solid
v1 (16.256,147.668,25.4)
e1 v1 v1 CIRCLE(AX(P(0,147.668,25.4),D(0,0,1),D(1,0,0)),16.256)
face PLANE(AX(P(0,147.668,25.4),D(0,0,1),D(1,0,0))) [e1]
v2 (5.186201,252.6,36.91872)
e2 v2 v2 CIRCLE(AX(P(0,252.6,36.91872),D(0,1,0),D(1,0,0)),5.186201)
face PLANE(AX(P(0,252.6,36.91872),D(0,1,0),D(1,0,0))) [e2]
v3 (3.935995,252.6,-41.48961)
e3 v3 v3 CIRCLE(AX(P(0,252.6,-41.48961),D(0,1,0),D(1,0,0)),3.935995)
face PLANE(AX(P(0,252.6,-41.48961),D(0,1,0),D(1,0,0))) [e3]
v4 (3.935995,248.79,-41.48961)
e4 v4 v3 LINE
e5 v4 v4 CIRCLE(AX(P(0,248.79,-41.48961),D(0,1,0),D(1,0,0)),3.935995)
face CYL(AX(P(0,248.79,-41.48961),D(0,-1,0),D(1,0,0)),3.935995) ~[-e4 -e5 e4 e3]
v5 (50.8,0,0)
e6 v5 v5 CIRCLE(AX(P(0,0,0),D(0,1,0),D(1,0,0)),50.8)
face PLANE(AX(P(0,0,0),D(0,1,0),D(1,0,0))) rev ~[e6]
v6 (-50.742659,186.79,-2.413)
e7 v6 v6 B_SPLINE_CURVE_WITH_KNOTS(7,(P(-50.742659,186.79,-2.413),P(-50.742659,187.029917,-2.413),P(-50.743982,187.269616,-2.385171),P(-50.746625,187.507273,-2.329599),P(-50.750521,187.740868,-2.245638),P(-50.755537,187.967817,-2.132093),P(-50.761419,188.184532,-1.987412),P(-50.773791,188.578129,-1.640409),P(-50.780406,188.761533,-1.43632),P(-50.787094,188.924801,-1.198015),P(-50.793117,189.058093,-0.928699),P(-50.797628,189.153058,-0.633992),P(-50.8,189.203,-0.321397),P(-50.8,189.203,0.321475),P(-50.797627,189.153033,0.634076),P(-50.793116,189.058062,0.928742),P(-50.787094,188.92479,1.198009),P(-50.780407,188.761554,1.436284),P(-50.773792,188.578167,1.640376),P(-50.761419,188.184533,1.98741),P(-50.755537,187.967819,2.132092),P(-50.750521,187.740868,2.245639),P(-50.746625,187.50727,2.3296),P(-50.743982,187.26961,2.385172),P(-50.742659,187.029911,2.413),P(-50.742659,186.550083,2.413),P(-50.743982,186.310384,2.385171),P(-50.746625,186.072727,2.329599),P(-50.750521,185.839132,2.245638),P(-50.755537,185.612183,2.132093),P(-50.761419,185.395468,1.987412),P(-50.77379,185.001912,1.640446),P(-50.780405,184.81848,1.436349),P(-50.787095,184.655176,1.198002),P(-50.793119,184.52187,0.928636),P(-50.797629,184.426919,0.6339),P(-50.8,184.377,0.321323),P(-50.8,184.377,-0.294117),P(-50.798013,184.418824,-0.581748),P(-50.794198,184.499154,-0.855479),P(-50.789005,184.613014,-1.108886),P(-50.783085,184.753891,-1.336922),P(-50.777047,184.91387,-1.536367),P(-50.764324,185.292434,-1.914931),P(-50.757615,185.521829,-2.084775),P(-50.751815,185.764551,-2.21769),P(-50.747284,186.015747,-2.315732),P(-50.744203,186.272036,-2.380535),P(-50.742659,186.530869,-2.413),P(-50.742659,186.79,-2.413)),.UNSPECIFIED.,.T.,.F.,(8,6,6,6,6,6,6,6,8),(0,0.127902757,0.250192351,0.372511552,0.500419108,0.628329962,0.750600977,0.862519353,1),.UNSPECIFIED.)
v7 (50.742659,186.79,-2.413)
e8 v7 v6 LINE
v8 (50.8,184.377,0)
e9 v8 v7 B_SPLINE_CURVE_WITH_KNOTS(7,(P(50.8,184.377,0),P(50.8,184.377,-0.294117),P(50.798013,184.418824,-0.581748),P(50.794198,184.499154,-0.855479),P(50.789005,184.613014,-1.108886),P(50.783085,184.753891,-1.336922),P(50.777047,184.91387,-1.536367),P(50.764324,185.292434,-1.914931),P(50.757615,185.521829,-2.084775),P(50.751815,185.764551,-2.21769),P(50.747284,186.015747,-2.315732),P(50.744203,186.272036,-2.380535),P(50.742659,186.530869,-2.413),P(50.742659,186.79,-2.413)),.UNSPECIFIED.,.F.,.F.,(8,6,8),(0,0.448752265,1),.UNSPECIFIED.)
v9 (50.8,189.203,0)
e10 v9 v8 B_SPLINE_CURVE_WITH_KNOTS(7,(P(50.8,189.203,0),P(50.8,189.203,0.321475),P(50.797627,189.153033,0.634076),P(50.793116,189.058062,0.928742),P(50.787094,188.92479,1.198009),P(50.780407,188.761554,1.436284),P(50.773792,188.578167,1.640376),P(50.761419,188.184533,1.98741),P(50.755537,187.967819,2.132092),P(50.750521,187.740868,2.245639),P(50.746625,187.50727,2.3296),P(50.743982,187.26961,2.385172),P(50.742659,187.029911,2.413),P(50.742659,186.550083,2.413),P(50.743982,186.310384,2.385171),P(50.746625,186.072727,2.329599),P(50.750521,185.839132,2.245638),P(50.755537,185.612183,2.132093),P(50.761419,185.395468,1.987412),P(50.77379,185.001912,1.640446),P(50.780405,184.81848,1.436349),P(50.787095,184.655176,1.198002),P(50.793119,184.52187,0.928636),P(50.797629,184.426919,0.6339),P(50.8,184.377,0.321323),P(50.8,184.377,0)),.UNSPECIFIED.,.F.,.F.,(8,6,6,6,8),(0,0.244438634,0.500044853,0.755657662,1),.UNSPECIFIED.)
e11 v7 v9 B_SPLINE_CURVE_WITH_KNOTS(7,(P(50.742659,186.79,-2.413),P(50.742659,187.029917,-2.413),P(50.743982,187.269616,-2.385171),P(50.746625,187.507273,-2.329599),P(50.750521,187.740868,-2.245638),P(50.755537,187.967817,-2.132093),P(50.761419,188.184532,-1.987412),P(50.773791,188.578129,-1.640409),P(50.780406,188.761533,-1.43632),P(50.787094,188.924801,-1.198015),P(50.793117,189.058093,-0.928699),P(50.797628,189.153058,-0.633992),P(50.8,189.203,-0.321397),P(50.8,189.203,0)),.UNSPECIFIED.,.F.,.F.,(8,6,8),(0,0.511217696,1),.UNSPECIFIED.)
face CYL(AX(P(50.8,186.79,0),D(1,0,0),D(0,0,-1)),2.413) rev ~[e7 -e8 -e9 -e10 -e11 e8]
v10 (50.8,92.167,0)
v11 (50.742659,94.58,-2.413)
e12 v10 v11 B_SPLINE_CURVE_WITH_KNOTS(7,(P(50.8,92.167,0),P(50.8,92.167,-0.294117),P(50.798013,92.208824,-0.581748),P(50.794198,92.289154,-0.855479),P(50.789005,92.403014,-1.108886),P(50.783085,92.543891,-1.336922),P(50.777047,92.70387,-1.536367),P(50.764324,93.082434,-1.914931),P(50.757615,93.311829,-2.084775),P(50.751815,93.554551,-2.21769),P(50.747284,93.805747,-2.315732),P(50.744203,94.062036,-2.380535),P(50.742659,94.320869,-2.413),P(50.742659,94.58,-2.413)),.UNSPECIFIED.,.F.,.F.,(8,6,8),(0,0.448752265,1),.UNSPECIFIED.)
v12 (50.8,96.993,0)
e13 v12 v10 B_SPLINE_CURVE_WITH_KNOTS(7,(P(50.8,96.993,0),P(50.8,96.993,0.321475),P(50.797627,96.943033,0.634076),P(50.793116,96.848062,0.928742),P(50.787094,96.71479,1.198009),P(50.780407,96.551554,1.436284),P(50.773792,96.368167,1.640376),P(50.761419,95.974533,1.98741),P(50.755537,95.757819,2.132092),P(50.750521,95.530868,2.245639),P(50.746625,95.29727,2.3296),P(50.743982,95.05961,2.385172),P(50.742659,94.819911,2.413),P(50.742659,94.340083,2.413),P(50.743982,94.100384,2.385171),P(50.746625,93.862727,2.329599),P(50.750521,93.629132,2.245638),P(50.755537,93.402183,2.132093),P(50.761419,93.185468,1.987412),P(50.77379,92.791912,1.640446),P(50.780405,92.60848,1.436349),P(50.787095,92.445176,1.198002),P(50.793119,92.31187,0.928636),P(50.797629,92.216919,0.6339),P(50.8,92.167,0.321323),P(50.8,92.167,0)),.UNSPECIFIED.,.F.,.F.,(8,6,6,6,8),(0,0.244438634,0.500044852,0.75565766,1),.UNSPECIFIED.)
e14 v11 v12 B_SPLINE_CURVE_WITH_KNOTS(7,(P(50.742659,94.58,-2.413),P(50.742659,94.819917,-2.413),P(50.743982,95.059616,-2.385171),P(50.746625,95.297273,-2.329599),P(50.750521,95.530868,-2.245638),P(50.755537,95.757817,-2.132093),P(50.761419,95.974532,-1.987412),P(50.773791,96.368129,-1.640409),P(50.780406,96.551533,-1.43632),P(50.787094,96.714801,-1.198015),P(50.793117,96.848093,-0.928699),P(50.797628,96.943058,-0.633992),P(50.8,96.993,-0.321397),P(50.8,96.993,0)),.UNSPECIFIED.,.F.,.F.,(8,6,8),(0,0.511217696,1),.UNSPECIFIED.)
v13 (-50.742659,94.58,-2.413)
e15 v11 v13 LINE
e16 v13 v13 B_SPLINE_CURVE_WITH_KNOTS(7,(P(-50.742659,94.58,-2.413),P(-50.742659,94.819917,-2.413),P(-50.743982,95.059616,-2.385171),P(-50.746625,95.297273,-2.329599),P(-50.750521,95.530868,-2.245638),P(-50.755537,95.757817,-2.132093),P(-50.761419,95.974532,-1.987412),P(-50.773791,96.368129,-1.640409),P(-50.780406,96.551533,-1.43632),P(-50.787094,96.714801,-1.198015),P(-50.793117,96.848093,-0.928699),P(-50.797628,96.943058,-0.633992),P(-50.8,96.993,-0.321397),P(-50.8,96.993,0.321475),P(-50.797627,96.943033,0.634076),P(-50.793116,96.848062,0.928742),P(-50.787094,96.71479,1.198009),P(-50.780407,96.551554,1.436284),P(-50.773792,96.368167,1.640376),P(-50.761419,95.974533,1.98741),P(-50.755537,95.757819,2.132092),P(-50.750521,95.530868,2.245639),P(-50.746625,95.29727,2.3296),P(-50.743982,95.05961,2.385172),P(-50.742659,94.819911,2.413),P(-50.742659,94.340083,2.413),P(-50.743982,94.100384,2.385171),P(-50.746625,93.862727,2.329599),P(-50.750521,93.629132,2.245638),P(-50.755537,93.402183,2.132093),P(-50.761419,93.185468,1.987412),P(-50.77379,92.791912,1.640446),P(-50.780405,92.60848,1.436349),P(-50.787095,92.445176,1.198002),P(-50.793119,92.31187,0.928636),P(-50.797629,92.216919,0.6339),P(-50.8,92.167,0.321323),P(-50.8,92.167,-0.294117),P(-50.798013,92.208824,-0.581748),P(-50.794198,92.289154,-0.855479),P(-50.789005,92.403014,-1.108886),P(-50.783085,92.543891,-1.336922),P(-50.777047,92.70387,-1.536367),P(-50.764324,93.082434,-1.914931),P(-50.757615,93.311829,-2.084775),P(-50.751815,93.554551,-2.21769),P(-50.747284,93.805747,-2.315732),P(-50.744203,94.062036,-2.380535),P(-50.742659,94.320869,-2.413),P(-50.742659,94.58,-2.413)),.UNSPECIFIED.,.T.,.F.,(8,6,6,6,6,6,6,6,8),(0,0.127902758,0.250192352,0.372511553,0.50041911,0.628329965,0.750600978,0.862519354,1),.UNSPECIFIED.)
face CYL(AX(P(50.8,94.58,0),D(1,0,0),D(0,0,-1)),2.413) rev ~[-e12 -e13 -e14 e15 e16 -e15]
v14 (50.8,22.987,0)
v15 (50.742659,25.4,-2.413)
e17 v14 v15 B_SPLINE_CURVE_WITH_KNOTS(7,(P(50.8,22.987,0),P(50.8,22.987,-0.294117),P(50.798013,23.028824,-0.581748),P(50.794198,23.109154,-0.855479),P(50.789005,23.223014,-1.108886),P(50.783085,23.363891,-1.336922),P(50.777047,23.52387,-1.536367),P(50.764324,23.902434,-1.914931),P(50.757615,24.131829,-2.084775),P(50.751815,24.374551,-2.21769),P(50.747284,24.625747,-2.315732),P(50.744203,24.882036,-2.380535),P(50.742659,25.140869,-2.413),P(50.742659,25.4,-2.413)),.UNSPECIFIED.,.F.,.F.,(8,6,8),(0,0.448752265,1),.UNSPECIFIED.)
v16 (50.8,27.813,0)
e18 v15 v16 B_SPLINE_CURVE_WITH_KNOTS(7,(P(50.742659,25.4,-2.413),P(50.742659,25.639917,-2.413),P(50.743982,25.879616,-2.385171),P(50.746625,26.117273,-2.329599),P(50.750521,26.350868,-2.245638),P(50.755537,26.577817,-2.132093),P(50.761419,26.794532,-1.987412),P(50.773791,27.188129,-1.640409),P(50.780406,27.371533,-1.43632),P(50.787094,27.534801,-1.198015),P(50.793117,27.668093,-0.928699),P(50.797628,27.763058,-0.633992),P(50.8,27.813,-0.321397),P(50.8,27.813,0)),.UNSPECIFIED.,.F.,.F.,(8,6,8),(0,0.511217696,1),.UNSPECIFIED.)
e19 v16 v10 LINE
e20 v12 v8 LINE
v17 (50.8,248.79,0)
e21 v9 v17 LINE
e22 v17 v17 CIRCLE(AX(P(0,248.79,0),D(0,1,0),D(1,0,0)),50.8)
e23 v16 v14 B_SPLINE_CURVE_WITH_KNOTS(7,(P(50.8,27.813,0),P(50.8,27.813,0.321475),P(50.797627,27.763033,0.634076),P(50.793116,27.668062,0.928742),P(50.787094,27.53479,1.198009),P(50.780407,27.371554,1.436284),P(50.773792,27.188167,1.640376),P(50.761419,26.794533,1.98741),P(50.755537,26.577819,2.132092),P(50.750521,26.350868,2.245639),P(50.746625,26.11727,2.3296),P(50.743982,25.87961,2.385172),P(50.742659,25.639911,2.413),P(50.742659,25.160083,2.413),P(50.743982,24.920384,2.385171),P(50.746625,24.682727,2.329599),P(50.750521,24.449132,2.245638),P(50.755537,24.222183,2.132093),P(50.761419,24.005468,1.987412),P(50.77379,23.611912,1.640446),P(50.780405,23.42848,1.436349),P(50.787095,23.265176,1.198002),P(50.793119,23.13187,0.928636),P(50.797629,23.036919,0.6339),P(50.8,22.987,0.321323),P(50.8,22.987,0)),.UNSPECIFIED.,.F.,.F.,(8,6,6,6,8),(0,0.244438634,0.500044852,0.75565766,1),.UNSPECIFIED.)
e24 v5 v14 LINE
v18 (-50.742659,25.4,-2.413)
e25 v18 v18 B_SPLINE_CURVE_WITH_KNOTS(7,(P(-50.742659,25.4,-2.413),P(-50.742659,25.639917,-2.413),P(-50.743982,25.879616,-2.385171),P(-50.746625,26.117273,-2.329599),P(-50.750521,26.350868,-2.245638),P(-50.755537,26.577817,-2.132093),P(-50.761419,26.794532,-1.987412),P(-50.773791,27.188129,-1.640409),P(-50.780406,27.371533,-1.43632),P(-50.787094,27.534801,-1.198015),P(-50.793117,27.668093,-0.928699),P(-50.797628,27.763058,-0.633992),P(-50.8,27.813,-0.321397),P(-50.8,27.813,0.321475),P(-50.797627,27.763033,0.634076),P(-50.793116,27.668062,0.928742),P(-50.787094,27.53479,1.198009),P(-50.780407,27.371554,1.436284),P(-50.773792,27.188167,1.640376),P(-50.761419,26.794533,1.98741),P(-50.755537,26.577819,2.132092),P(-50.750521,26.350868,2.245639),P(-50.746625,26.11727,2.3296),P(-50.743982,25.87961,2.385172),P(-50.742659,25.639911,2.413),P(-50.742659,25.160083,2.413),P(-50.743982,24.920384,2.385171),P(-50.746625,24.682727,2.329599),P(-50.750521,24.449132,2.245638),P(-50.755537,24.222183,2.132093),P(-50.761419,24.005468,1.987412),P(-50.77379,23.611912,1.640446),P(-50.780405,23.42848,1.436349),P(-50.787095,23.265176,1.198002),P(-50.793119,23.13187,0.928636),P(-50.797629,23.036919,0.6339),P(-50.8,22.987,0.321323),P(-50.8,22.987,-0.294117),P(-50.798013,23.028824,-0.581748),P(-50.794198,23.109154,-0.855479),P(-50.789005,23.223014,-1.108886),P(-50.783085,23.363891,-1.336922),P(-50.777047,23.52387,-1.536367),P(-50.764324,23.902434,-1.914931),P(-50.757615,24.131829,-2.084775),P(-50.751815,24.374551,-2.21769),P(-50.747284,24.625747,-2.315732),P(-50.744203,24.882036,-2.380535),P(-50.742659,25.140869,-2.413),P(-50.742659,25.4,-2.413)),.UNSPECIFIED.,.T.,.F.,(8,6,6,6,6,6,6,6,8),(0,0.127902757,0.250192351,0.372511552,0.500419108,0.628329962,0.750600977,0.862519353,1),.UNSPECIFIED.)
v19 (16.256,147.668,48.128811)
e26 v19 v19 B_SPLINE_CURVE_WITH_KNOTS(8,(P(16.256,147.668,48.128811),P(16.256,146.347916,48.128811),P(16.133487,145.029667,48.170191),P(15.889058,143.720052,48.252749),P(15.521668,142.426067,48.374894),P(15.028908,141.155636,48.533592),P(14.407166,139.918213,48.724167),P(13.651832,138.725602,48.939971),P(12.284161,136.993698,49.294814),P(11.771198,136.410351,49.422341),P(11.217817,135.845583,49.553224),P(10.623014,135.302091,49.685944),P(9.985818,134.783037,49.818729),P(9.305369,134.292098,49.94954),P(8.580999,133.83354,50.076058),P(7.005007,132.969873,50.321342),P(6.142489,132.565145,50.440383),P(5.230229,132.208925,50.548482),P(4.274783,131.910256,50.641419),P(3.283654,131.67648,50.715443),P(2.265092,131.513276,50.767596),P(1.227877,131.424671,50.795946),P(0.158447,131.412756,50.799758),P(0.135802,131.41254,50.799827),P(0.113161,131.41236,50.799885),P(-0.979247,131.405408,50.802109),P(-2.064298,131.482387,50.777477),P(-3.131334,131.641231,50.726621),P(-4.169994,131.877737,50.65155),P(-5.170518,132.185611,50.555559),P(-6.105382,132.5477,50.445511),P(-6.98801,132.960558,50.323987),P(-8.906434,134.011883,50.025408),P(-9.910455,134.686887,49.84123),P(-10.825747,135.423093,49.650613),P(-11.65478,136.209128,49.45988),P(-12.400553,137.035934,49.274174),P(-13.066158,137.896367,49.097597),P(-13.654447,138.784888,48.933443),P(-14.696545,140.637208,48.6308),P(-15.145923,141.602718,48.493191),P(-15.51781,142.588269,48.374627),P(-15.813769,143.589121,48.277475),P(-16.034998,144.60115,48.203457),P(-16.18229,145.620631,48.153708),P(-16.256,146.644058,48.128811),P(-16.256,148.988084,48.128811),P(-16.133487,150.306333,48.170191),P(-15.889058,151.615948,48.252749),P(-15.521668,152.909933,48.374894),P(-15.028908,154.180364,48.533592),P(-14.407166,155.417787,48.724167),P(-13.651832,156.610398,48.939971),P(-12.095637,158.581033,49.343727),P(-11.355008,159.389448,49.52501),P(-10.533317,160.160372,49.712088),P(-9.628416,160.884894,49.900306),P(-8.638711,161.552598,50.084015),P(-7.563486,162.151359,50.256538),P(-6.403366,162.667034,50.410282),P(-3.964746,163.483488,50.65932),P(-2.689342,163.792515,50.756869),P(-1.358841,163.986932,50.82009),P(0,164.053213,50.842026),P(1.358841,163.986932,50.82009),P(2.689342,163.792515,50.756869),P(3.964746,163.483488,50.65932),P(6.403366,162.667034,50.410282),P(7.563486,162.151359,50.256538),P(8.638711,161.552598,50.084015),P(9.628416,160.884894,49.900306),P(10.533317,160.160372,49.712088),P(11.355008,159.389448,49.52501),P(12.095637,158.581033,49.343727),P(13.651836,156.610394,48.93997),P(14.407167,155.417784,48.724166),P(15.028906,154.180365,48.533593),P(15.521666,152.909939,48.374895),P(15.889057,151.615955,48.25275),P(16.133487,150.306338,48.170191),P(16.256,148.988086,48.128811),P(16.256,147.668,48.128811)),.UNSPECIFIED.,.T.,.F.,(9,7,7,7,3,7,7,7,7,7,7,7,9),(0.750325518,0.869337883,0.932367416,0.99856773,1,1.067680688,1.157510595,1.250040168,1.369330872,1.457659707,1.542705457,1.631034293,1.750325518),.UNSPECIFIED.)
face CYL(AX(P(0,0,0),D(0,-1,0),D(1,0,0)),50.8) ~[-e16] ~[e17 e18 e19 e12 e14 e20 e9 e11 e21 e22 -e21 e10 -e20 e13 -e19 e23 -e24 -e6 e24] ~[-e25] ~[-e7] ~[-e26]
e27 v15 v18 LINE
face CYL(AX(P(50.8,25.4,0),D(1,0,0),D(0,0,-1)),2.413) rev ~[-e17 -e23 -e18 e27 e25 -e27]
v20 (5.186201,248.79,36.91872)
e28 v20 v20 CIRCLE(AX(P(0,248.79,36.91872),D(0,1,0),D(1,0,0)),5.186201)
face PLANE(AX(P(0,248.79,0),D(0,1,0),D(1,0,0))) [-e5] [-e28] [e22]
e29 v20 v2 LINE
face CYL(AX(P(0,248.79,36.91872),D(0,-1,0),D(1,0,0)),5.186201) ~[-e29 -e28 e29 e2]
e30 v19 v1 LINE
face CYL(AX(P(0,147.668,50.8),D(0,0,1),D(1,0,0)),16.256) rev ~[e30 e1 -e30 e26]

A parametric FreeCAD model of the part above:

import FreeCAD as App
import Part
import Sketcher
from FreeCAD import Vector
Q = App.Units.Quantity

doc = App.newDocument("Part")
body = doc.addObject("PartDesign::Body", "Body")

sketch1 = body.newObject("Sketcher::SketchObject", "Sketch")
sketch1.AttachmentSupport = (doc.getObject("XZ_Plane"), [""])
sketch1.MapMode = "FlatFace"
sketch1.addGeometry(Part.Circle(Vector(0, 0, 0), Vector(0, 0, 1), 50.8), False)
sketch1.addConstraint([
    Sketcher.Constraint("Coincident", 0, 3, -1, 1),
    Sketcher.Constraint("Diameter", 0, Q("4 in")),
])
pad1 = body.newObject("PartDesign::Pad", "Pad")
pad1.Profile = sketch1
pad1.Length = 248.79
pad1.Reversed = True

sketch2 = body.newObject("Sketcher::SketchObject", "Sketch001")
sketch2.AttachmentSupport = (doc.getObject("XY_Plane"), [""])
sketch2.MapMode = "FlatFace"
sketch2.AttachmentOffset = App.Placement(Vector(0, 0, 2 * 25.4), App.Rotation())
sketch2.addGeometry(Part.Circle(Vector(0, 147.668, 0), Vector(0, 0, 1), 16.256), False)
sketch2.addConstraint([
    Sketcher.Constraint("PointOnObject", 0, 3, -2),
    Sketcher.Constraint("Diameter", 0, Q("1.28 in")),
    Sketcher.Constraint("DistanceY", -1, 1, 0, 3, Q("147.668 mm")),
])
pocket1 = body.newObject("PartDesign::Pocket", "Pocket")
pocket1.Profile = sketch2
pocket1.Length = Q("1 in")

sketch3 = body.newObject("Sketcher::SketchObject", "Sketch002")
sketch3.AttachmentSupport = (doc.getObject("YZ_Plane"), [""])
sketch3.MapMode = "FlatFace"
sketch3.AttachmentOffset = App.Placement(Vector(0, 0, 2 * 25.4), App.Rotation())
sketch3.addGeometry([
    Part.Circle(Vector(186.79, 0, 0), Vector(0, 0, 1), 2.413),
    Part.Circle(Vector(94.58, 0, 0), Vector(0, 0, 1), 2.413),
    Part.Circle(Vector(25.4, 0, 0), Vector(0, 0, 1), 2.413),
], False)
sketch3.addConstraint([
    Sketcher.Constraint("Equal", 0, 1),
    Sketcher.Constraint("Equal", 1, 2),
    Sketcher.Constraint("PointOnObject", 0, 3, -1),
    Sketcher.Constraint("PointOnObject", 1, 3, -1),
    Sketcher.Constraint("PointOnObject", 2, 3, -1),
    Sketcher.Constraint("Diameter", 0, Q("0.19 in")),
    Sketcher.Constraint("DistanceX", -1, 1, 2, 3, Q("1 in")),
    Sketcher.Constraint("DistanceX", -1, 1, 0, 3, Q("186.79 mm")),
    Sketcher.Constraint("DistanceX", -1, 1, 1, 3, Q("94.58 mm")),
])
pocket2 = body.newObject("PartDesign::Pocket", "Pocket001")
pocket2.Profile = sketch3
pocket2.Type = "ThroughAll"

sketch4 = body.newObject("Sketcher::SketchObject", "Sketch003")
sketch4.AttachmentSupport = (doc.getObject("XZ_Plane"), [""])
sketch4.MapMode = "FlatFace"
sketch4.AttachmentOffset = App.Placement(Vector(0, 0, -248.79), App.Rotation())
sketch4.addGeometry([
    Part.Circle(Vector(0, -41.48961, 0), Vector(0, 0, 1), 3.935995),
    Part.Circle(Vector(0, 36.91872, 0), Vector(0, 0, 1), 5.186201),
], False)
sketch4.addConstraint([
    Sketcher.Constraint("PointOnObject", 0, 3, -2),
    Sketcher.Constraint("PointOnObject", 1, 3, -2),
    Sketcher.Constraint("Diameter", 0, Q("7.87199 mm")),
    Sketcher.Constraint("Diameter", 1, Q("10.372402 mm")),
    Sketcher.Constraint("DistanceY", 0, 3, -1, 1, Q("41.48961 mm")),
    Sketcher.Constraint("DistanceY", -1, 1, 1, 3, Q("36.91872 mm")),
])
pad2 = body.newObject("PartDesign::Pad", "Pad001")
pad2.Profile = sketch4
pad2.Length = Q("0.15 in")
pad2.Reversed = True

doc.recompute()
